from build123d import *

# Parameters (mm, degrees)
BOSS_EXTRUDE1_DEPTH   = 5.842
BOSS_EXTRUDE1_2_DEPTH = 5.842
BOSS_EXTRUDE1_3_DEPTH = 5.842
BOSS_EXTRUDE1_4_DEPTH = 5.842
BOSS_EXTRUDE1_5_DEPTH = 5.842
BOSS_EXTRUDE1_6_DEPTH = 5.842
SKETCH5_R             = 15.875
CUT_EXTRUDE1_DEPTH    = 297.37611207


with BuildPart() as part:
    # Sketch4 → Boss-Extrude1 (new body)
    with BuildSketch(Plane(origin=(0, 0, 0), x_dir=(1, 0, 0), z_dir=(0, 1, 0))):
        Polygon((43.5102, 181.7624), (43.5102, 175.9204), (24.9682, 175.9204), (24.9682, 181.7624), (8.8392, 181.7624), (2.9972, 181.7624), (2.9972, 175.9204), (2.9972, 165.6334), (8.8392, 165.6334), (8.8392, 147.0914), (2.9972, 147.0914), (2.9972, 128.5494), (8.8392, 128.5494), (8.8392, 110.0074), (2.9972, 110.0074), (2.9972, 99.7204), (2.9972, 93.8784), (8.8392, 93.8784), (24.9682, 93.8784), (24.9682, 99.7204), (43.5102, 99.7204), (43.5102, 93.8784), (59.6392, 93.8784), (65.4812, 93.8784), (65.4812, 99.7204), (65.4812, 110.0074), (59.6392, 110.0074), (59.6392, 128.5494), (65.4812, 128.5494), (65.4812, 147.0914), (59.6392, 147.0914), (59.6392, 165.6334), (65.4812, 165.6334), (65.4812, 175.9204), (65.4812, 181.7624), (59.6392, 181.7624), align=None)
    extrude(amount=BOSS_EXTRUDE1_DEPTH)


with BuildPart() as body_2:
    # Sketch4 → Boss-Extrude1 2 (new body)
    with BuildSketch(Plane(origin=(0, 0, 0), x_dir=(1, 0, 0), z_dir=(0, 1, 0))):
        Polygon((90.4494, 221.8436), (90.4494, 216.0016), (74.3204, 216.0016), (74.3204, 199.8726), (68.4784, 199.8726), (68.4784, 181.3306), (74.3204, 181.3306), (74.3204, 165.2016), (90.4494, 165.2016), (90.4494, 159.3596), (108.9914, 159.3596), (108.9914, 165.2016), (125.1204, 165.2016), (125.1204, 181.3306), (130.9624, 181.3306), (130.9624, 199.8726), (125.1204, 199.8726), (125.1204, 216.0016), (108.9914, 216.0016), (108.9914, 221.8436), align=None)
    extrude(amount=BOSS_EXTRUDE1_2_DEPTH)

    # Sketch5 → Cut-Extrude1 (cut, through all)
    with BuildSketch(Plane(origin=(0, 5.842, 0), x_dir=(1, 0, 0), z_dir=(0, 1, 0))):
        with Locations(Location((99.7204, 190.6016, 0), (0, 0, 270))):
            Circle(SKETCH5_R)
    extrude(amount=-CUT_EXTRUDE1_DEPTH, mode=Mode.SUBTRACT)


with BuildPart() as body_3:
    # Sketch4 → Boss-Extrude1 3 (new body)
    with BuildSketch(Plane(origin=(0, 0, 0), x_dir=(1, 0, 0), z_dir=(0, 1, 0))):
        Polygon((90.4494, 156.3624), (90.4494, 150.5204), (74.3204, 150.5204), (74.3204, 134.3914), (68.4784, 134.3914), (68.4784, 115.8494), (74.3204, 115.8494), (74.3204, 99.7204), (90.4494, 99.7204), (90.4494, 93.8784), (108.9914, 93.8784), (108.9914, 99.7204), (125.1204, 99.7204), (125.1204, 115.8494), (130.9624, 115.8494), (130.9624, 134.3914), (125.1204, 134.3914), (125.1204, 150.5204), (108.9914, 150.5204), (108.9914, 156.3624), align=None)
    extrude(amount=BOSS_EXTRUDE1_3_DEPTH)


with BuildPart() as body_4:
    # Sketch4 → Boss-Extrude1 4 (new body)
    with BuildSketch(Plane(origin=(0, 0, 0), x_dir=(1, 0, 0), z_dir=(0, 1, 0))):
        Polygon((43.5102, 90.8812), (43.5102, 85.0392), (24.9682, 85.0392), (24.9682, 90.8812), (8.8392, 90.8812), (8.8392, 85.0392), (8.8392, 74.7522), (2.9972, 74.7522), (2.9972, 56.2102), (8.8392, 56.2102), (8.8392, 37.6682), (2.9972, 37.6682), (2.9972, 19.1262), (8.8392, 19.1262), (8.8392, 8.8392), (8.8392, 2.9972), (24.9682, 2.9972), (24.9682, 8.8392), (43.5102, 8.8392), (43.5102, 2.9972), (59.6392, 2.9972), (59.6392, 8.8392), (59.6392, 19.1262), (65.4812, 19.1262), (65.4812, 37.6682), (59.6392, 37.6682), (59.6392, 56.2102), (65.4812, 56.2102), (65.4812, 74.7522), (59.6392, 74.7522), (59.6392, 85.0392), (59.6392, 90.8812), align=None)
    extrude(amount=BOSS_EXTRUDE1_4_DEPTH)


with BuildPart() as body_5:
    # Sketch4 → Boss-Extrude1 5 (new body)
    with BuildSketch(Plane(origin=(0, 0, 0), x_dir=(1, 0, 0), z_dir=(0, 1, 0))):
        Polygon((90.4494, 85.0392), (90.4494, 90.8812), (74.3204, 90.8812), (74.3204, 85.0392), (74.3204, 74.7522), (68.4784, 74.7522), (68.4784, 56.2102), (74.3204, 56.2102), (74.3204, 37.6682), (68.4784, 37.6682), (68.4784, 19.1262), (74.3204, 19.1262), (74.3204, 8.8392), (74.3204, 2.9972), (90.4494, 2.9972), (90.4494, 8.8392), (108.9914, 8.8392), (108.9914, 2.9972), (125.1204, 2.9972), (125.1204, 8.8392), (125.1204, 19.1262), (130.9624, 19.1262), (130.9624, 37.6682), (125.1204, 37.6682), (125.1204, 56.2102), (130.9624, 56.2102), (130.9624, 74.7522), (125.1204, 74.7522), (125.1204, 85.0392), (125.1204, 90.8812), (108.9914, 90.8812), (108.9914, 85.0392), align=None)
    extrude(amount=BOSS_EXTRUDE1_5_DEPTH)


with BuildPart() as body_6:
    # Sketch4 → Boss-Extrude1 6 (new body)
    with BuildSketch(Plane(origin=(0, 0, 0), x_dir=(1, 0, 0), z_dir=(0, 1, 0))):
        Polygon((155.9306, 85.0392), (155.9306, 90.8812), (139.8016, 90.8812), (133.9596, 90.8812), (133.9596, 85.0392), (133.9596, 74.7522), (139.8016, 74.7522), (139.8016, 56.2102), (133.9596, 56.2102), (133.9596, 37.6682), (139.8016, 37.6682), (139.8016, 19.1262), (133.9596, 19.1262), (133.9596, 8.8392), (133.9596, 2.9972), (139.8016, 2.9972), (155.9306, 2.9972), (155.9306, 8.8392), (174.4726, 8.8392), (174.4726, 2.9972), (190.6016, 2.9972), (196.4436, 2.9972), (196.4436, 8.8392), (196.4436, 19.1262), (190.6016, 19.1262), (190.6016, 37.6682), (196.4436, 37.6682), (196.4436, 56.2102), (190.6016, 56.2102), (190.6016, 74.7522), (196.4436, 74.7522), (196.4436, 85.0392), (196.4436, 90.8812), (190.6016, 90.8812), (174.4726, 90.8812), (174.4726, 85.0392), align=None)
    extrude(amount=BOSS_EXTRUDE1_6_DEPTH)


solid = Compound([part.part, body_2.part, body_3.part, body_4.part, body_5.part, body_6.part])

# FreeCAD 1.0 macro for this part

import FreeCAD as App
import Part
import Sketcher
from FreeCAD import Vector
Q = App.Units.Quantity


def add_polygon(sketch, points):
    """Adds a closed chain of lines whose ends are joined by coincident constraints."""
    first, n = sketch.GeometryCount, len(points)
    for a, b in zip(points, points[1:] + points[:1]):
        sketch.addGeometry(Part.LineSegment(App.Vector(*a, 0), App.Vector(*b, 0)), False)
    for i in range(n):
        sketch.addConstraint(Sketcher.Constraint("Coincident", first + i, 2, first + (i + 1) % n, 1))

doc = App.newDocument("Part")
body = doc.addObject("PartDesign::Body", "Body")

sketch1 = body.newObject("Sketcher::SketchObject", "Sketch")
sketch1.AttachmentSupport = (doc.getObject("XZ_Plane"), [""])
sketch1.MapMode = "FlatFace"
add_polygon(sketch1, [(44, -182), (44, -176), (25, -176), (25, -182), (3, -182), (3, -166), (9, -166), (9, -147), (3, -147), (3, -129), (9, -129), (9, -110), (3, -110), (3, -94), (25, -94), (25, -100), (44, -100), (44, -94), (65, -94), (65, -110), (60, -110), (60, -129), (65, -129), (65, -147), (60, -147), (60, -166), (65, -166), (65, -182)])
sketch1.addConstraint([
    Sketcher.Constraint("Vertical", 0),
    Sketcher.Constraint("Horizontal", 1),
    Sketcher.Constraint("Vertical", 2),
    Sketcher.Constraint("Horizontal", 3),
    Sketcher.Constraint("Vertical", 4),
    Sketcher.Constraint("Horizontal", 5),
    Sketcher.Constraint("Vertical", 6),
    Sketcher.Constraint("Horizontal", 7),
    Sketcher.Constraint("Vertical", 8),
    Sketcher.Constraint("Horizontal", 9),
    Sketcher.Constraint("Vertical", 10),
    Sketcher.Constraint("Horizontal", 11),
    Sketcher.Constraint("Vertical", 12),
    Sketcher.Constraint("Horizontal", 13),
    Sketcher.Constraint("Vertical", 14),
    Sketcher.Constraint("Horizontal", 15),
    Sketcher.Constraint("Vertical", 16),
    Sketcher.Constraint("Horizontal", 17),
    Sketcher.Constraint("Vertical", 18),
    Sketcher.Constraint("Horizontal", 19),
    Sketcher.Constraint("Vertical", 20),
    Sketcher.Constraint("Horizontal", 21),
    Sketcher.Constraint("Vertical", 22),
    Sketcher.Constraint("Horizontal", 23),
    Sketcher.Constraint("Vertical", 24),
    Sketcher.Constraint("Horizontal", 25),
    Sketcher.Constraint("Vertical", 26),
    Sketcher.Constraint("Horizontal", 27),
    Sketcher.Constraint("Horizontal", 13, 2, 16, 2),
    Sketcher.Constraint("Horizontal", 11, 2, 18, 2),
    Sketcher.Constraint("Horizontal", 9, 2, 20, 2),
    Sketcher.Constraint("Horizontal", 7, 2, 22, 2),
    Sketcher.Constraint("Horizontal", 5, 2, 24, 2),
    Sketcher.Constraint("Horizontal", 3, 2, 26, 2),
    Sketcher.Constraint("Vertical", 4, 2, 7, 2),
    Sketcher.Constraint("Vertical", 6, 2, 9, 2),
    Sketcher.Constraint("Vertical", 8, 2, 11, 2),
    Sketcher.Constraint("Vertical", 2, 2, 13, 2),
    Sketcher.Constraint("Vertical", 0, 2, 15, 2),
    Sketcher.Constraint("Vertical", 18, 2, 21, 2),
    Sketcher.Constraint("Vertical", 20, 2, 23, 2),
    Sketcher.Constraint("Vertical", 22, 2, 25, 2),
    Sketcher.Constraint("Equal", 13, 17),
    Sketcher.Constraint("Equal", 11, 19),
    Sketcher.Constraint("Equal", 25, 0),
    Sketcher.Constraint("Equal", 15, 6),
    Sketcher.Constraint("Equal", 6, 8),
    Sketcher.Constraint("Equal", 8, 10),
    Sketcher.Constraint("Equal", 4, 12),
    Sketcher.Constraint("Equal", 2, 14),
    Sketcher.Constraint("DistanceX", 1, 2, 1, 1, Q("0.73 in")),
    Sketcher.Constraint("DistanceX", 5, 1, 5, 2, Q("0.23 in")),
    Sketcher.Constraint("DistanceX", 3, 2, 3, 1, Q("0.865 in")),
    Sketcher.Constraint("DistanceY", 4, 1, 4, 2, Q("0.635 in")),
    Sketcher.Constraint("DistanceX", -1, 1, 0, 2, Q("1.713 in")),
    Sketcher.Constraint("DistanceY", 0, 2, -1, 1, Q("6.926 in")),
])
pad1 = body.newObject("PartDesign::Pad", "Pad")
pad1.Profile = sketch1
pad1.Length = Q("0.23 in")
pad1.Reversed = True
body2 = doc.addObject("PartDesign::Body", "Body001")

sketch2 = body2.newObject("Sketcher::SketchObject", "Sketch001")
sketch2.AttachmentSupport = (doc.getObject("XZ_Plane001"), [""])
sketch2.MapMode = "FlatFace"
add_polygon(sketch2, [(90, -222), (90, -216), (74, -216), (74, -200), (68, -200), (68, -181), (74, -181), (74, -165), (90, -165), (90, -159), (109, -159), (109, -165), (125, -165), (125, -181), (131, -181), (131, -200), (125, -200), (125, -216), (109, -216), (109, -222)])
sketch2.addConstraint([
    Sketcher.Constraint("Vertical", 0),
    Sketcher.Constraint("Horizontal", 1),
    Sketcher.Constraint("Vertical", 2),
    Sketcher.Constraint("Horizontal", 3),
    Sketcher.Constraint("Vertical", 4),
    Sketcher.Constraint("Horizontal", 5),
    Sketcher.Constraint("Vertical", 6),
    Sketcher.Constraint("Horizontal", 7),
    Sketcher.Constraint("Vertical", 8),
    Sketcher.Constraint("Horizontal", 9),
    Sketcher.Constraint("Vertical", 10),
    Sketcher.Constraint("Horizontal", 11),
    Sketcher.Constraint("Vertical", 12),
    Sketcher.Constraint("Horizontal", 13),
    Sketcher.Constraint("Vertical", 14),
    Sketcher.Constraint("Horizontal", 15),
    Sketcher.Constraint("Vertical", 16),
    Sketcher.Constraint("Horizontal", 17),
    Sketcher.Constraint("Vertical", 18),
    Sketcher.Constraint("Horizontal", 19),
    Sketcher.Constraint("Horizontal", 7, 2, 10, 2),
    Sketcher.Constraint("Horizontal", 5, 2, 12, 2),
    Sketcher.Constraint("Horizontal", 3, 2, 14, 2),
    Sketcher.Constraint("Horizontal", 1, 2, 16, 2),
    Sketcher.Constraint("Vertical", 2, 2, 5, 2),
    Sketcher.Constraint("Vertical", 0, 2, 7, 2),
    Sketcher.Constraint("Vertical", 12, 2, 15, 2),
    Sketcher.Constraint("Vertical", 10, 2, 17, 2),
    Sketcher.Constraint("Equal", 7, 11),
    Sketcher.Constraint("Equal", 5, 13),
    Sketcher.Constraint("Equal", 15, 0),
    Sketcher.Constraint("Equal", 17, 2),
    Sketcher.Constraint("Equal", 19, 4),
    Sketcher.Constraint("Equal", 2, 6),
    Sketcher.Constraint("Equal", 0, 8),
    Sketcher.Constraint("DistanceY", 1, 2, 6, 2, Q("2 in")),
    Sketcher.Constraint("DistanceX", 3, 2, 3, 1, Q("0.23 in")),
    Sketcher.Constraint("DistanceX", 9, 1, 9, 2, Q("0.73 in")),
    Sketcher.Constraint("DistanceX", -1, 1, 0, 2, Q("3.561 in")),
    Sketcher.Constraint("DistanceY", 0, 2, -1, 1, Q("8.504 in")),
])
pad2 = body2.newObject("PartDesign::Pad", "Pad001")
pad2.Profile = sketch2
pad2.Length = Q("0.23 in")
pad2.Reversed = True

sketch3 = body2.newObject("Sketcher::SketchObject", "Sketch002")
sketch3.AttachmentSupport = (doc.getObject("XZ_Plane001"), [""])
sketch3.MapMode = "FlatFace"
sketch3.AttachmentOffset = App.Placement(Vector(0, 0, -0.23 * 25.4), App.Rotation())
sketch3.addGeometry(Part.Circle(Vector(100, -191, 0), Vector(0, 0, 1), 16), False)
sketch3.addConstraint([
    Sketcher.Constraint("Diameter", 0, Q("1.25 in")),
    Sketcher.Constraint("DistanceX", -1, 1, 0, 3, Q("3.926 in")),
    Sketcher.Constraint("DistanceY", 0, 3, -1, 1, Q("7.504 in")),
])
pocket1 = body2.newObject("PartDesign::Pocket", "Pocket")
pocket1.Profile = sketch3
pocket1.Type = "ThroughAll"
pocket1.Reversed = True
body3 = doc.addObject("PartDesign::Body", "Body002")

sketch4 = body3.newObject("Sketcher::SketchObject", "Sketch003")
sketch4.AttachmentSupport = (doc.getObject("XZ_Plane002"), [""])
sketch4.MapMode = "FlatFace"
add_polygon(sketch4, [(90, -156), (90, -151), (74, -151), (74, -134), (68, -134), (68, -116), (74, -116), (74, -100), (90, -100), (90, -94), (109, -94), (109, -100), (125, -100), (125, -116), (131, -116), (131, -134), (125, -134), (125, -151), (109, -151), (109, -156)])
sketch4.addConstraint([
    Sketcher.Constraint("Vertical", 0),
    Sketcher.Constraint("Horizontal", 1),
    Sketcher.Constraint("Vertical", 2),
    Sketcher.Constraint("Horizontal", 3),
    Sketcher.Constraint("Vertical", 4),
    Sketcher.Constraint("Horizontal", 5),
    Sketcher.Constraint("Vertical", 6),
    Sketcher.Constraint("Horizontal", 7),
    Sketcher.Constraint("Vertical", 8),
    Sketcher.Constraint("Horizontal", 9),
    Sketcher.Constraint("Vertical", 10),
    Sketcher.Constraint("Horizontal", 11),
    Sketcher.Constraint("Vertical", 12),
    Sketcher.Constraint("Horizontal", 13),
    Sketcher.Constraint("Vertical", 14),
    Sketcher.Constraint("Horizontal", 15),
    Sketcher.Constraint("Vertical", 16),
    Sketcher.Constraint("Horizontal", 17),
    Sketcher.Constraint("Vertical", 18),
    Sketcher.Constraint("Horizontal", 19),
    Sketcher.Constraint("Horizontal", 7, 2, 10, 2),
    Sketcher.Constraint("Horizontal", 5, 2, 12, 2),
    Sketcher.Constraint("Horizontal", 3, 2, 14, 2),
    Sketcher.Constraint("Horizontal", 1, 2, 16, 2),
    Sketcher.Constraint("Vertical", 2, 2, 5, 2),
    Sketcher.Constraint("Vertical", 0, 2, 7, 2),
    Sketcher.Constraint("Vertical", 12, 2, 15, 2),
    Sketcher.Constraint("Vertical", 10, 2, 17, 2),
    Sketcher.Constraint("Equal", 7, 11),
    Sketcher.Constraint("Equal", 5, 13),
    Sketcher.Constraint("Equal", 15, 0),
    Sketcher.Constraint("Equal", 17, 2),
    Sketcher.Constraint("Equal", 19, 4),
    Sketcher.Constraint("Equal", 2, 6),
    Sketcher.Constraint("Equal", 0, 8),
    Sketcher.Constraint("DistanceY", 1, 2, 6, 2, Q("2 in")),
    Sketcher.Constraint("DistanceX", 3, 2, 3, 1, Q("0.23 in")),
    Sketcher.Constraint("DistanceX", 9, 1, 9, 2, Q("0.73 in")),
    Sketcher.Constraint("DistanceX", -1, 1, 0, 2, Q("3.561 in")),
    Sketcher.Constraint("DistanceY", 0, 2, -1, 1, Q("5.926 in")),
])
pad3 = body3.newObject("PartDesign::Pad", "Pad002")
pad3.Profile = sketch4
pad3.Length = Q("0.23 in")
pad3.Reversed = True
body4 = doc.addObject("PartDesign::Body", "Body003")

sketch5 = body4.newObject("Sketcher::SketchObject", "Sketch004")
sketch5.AttachmentSupport = (doc.getObject("XZ_Plane003"), [""])
sketch5.MapMode = "FlatFace"
add_polygon(sketch5, [(44, -91), (44, -85), (25, -85), (25, -91), (9, -91), (9, -75), (3, -75), (3, -56), (9, -56), (9, -38), (3, -38), (3, -19), (9, -19), (9, -3), (25, -3), (25, -9), (44, -9), (44, -3), (60, -3), (60, -19), (65, -19), (65, -38), (60, -38), (60, -56), (65, -56), (65, -75), (60, -75), (60, -91)])
sketch5.addConstraint([
    Sketcher.Constraint("Vertical", 0),
    Sketcher.Constraint("Horizontal", 1),
    Sketcher.Constraint("Vertical", 2),
    Sketcher.Constraint("Horizontal", 3),
    Sketcher.Constraint("Vertical", 4),
    Sketcher.Constraint("Horizontal", 5),
    Sketcher.Constraint("Vertical", 6),
    Sketcher.Constraint("Horizontal", 7),
    Sketcher.Constraint("Vertical", 8),
    Sketcher.Constraint("Horizontal", 9),
    Sketcher.Constraint("Vertical", 10),
    Sketcher.Constraint("Horizontal", 11),
    Sketcher.Constraint("Vertical", 12),
    Sketcher.Constraint("Horizontal", 13),
    Sketcher.Constraint("Vertical", 14),
    Sketcher.Constraint("Horizontal", 15),
    Sketcher.Constraint("Vertical", 16),
    Sketcher.Constraint("Horizontal", 17),
    Sketcher.Constraint("Vertical", 18),
    Sketcher.Constraint("Horizontal", 19),
    Sketcher.Constraint("Vertical", 20),
    Sketcher.Constraint("Horizontal", 21),
    Sketcher.Constraint("Vertical", 22),
    Sketcher.Constraint("Horizontal", 23),
    Sketcher.Constraint("Vertical", 24),
    Sketcher.Constraint("Horizontal", 25),
    Sketcher.Constraint("Vertical", 26),
    Sketcher.Constraint("Horizontal", 27),
    Sketcher.Constraint("Horizontal", 13, 2, 16, 2),
    Sketcher.Constraint("Horizontal", 11, 2, 18, 2),
    Sketcher.Constraint("Horizontal", 9, 2, 20, 2),
    Sketcher.Constraint("Horizontal", 7, 2, 22, 2),
    Sketcher.Constraint("Horizontal", 5, 2, 24, 2),
    Sketcher.Constraint("Horizontal", 3, 2, 26, 2),
    Sketcher.Constraint("Vertical", 4, 2, 7, 2),
    Sketcher.Constraint("Vertical", 6, 2, 9, 2),
    Sketcher.Constraint("Vertical", 8, 2, 11, 2),
    Sketcher.Constraint("Vertical", 2, 2, 13, 2),
    Sketcher.Constraint("Vertical", 0, 2, 15, 2),
    Sketcher.Constraint("Vertical", 18, 2, 21, 2),
    Sketcher.Constraint("Vertical", 20, 2, 23, 2),
    Sketcher.Constraint("Vertical", 22, 2, 25, 2),
    Sketcher.Constraint("Equal", 13, 17),
    Sketcher.Constraint("Equal", 11, 19),
    Sketcher.Constraint("Equal", 25, 0),
    Sketcher.Constraint("Equal", 27, 4),
    Sketcher.Constraint("Equal", 15, 6),
    Sketcher.Constraint("Equal", 6, 8),
    Sketcher.Constraint("Equal", 8, 10),
    Sketcher.Constraint("Equal", 4, 12),
    Sketcher.Constraint("Equal", 2, 14),
    Sketcher.Constraint("DistanceX", 12, 2, 17, 2, Q("2 in")),
    Sketcher.Constraint("DistanceX", 1, 2, 1, 1, Q("0.73 in")),
    Sketcher.Constraint("DistanceX", 5, 2, 5, 1, Q("0.23 in")),
    Sketcher.Constraint("DistanceX", -1, 1, 0, 2, Q("1.713 in")),
    Sketcher.Constraint("DistanceY", 0, 2, -1, 1, Q("3.348 in")),
])
pad4 = body4.newObject("PartDesign::Pad", "Pad003")
pad4.Profile = sketch5
pad4.Length = Q("0.23 in")
pad4.Reversed = True
body5 = doc.addObject("PartDesign::Body", "Body004")

sketch6 = body5.newObject("Sketcher::SketchObject", "Sketch005")
sketch6.AttachmentSupport = (doc.getObject("XZ_Plane004"), [""])
sketch6.MapMode = "FlatFace"
add_polygon(sketch6, [(90, -85), (90, -91), (74, -91), (74, -75), (68, -75), (68, -56), (74, -56), (74, -38), (68, -38), (68, -19), (74, -19), (74, -3), (90, -3), (90, -9), (109, -9), (109, -3), (125, -3), (125, -19), (131, -19), (131, -38), (125, -38), (125, -56), (131, -56), (131, -75), (125, -75), (125, -91), (109, -91), (109, -85)])
sketch6.addConstraint([
    Sketcher.Constraint("Vertical", 0),
    Sketcher.Constraint("Horizontal", 1),
    Sketcher.Constraint("Vertical", 2),
    Sketcher.Constraint("Horizontal", 3),
    Sketcher.Constraint("Vertical", 4),
    Sketcher.Constraint("Horizontal", 5),
    Sketcher.Constraint("Vertical", 6),
    Sketcher.Constraint("Horizontal", 7),
    Sketcher.Constraint("Vertical", 8),
    Sketcher.Constraint("Horizontal", 9),
    Sketcher.Constraint("Vertical", 10),
    Sketcher.Constraint("Horizontal", 11),
    Sketcher.Constraint("Vertical", 12),
    Sketcher.Constraint("Horizontal", 13),
    Sketcher.Constraint("Vertical", 14),
    Sketcher.Constraint("Horizontal", 15),
    Sketcher.Constraint("Vertical", 16),
    Sketcher.Constraint("Horizontal", 17),
    Sketcher.Constraint("Vertical", 18),
    Sketcher.Constraint("Horizontal", 19),
    Sketcher.Constraint("Vertical", 20),
    Sketcher.Constraint("Horizontal", 21),
    Sketcher.Constraint("Vertical", 22),
    Sketcher.Constraint("Horizontal", 23),
    Sketcher.Constraint("Vertical", 24),
    Sketcher.Constraint("Horizontal", 25),
    Sketcher.Constraint("Vertical", 26),
    Sketcher.Constraint("Horizontal", 27),
    Sketcher.Constraint("Horizontal", 11, 2, 14, 2),
    Sketcher.Constraint("Horizontal", 9, 2, 16, 2),
    Sketcher.Constraint("Horizontal", 7, 2, 18, 2),
    Sketcher.Constraint("Horizontal", 5, 2, 20, 2),
    Sketcher.Constraint("Horizontal", 3, 2, 22, 2),
    Sketcher.Constraint("Horizontal", 1, 2, 24, 2),
    Sketcher.Constraint("Vertical", 2, 2, 5, 2),
    Sketcher.Constraint("Vertical", 4, 2, 7, 2),
    Sketcher.Constraint("Vertical", 6, 2, 9, 2),
    Sketcher.Constraint("Vertical", 0, 2, 11, 2),
    Sketcher.Constraint("Vertical", 16, 2, 19, 2),
    Sketcher.Constraint("Vertical", 18, 2, 21, 2),
    Sketcher.Constraint("Vertical", 20, 2, 23, 2),
    Sketcher.Constraint("Vertical", 14, 2, 25, 2),
    Sketcher.Constraint("Equal", 11, 15),
    Sketcher.Constraint("Equal", 9, 17),
    Sketcher.Constraint("Equal", 23, 0),
    Sketcher.Constraint("Equal", 25, 2),
    Sketcher.Constraint("Equal", 27, 4),
    Sketcher.Constraint("Equal", 4, 6),
    Sketcher.Constraint("Equal", 6, 8),
    Sketcher.Constraint("Equal", 2, 10),
    Sketcher.Constraint("Equal", 0, 12),
    Sketcher.Constraint("DistanceX", 10, 2, 15, 2, Q("2 in")),
    Sketcher.Constraint("DistanceX", 3, 2, 3, 1, Q("0.23 in")),
    Sketcher.Constraint("DistanceX", 13, 1, 13, 2, Q("0.73 in")),
    Sketcher.Constraint("DistanceX", -1, 1, 0, 2, Q("3.561 in")),
    Sketcher.Constraint("DistanceY", 0, 2, -1, 1, Q("3.578 in")),
])
pad5 = body5.newObject("PartDesign::Pad", "Pad004")
pad5.Profile = sketch6
pad5.Length = Q("0.23 in")
pad5.Reversed = True
body6 = doc.addObject("PartDesign::Body", "Body005")

sketch7 = body6.newObject("Sketcher::SketchObject", "Sketch006")
sketch7.AttachmentSupport = (doc.getObject("XZ_Plane005"), [""])
sketch7.MapMode = "FlatFace"
add_polygon(sketch7, [(156, -85), (156, -91), (134, -91), (134, -75), (140, -75), (140, -56), (134, -56), (134, -38), (140, -38), (140, -19), (134, -19), (134, -3), (156, -3), (156, -9), (174, -9), (174, -3), (196, -3), (196, -19), (191, -19), (191, -38), (196, -38), (196, -56), (191, -56), (191, -75), (196, -75), (196, -91), (174, -91), (174, -85)])
sketch7.addConstraint([
    Sketcher.Constraint("Vertical", 0),
    Sketcher.Constraint("Horizontal", 1),
    Sketcher.Constraint("Vertical", 2),
    Sketcher.Constraint("Horizontal", 3),
    Sketcher.Constraint("Vertical", 4),
    Sketcher.Constraint("Horizontal", 5),
    Sketcher.Constraint("Vertical", 6),
    Sketcher.Constraint("Horizontal", 7),
    Sketcher.Constraint("Vertical", 8),
    Sketcher.Constraint("Horizontal", 9),
    Sketcher.Constraint("Vertical", 10),
    Sketcher.Constraint("Horizontal", 11),
    Sketcher.Constraint("Vertical", 12),
    Sketcher.Constraint("Horizontal", 13),
    Sketcher.Constraint("Vertical", 14),
    Sketcher.Constraint("Horizontal", 15),
    Sketcher.Constraint("Vertical", 16),
    Sketcher.Constraint("Horizontal", 17),
    Sketcher.Constraint("Vertical", 18),
    Sketcher.Constraint("Horizontal", 19),
    Sketcher.Constraint("Vertical", 20),
    Sketcher.Constraint("Horizontal", 21),
    Sketcher.Constraint("Vertical", 22),
    Sketcher.Constraint("Horizontal", 23),
    Sketcher.Constraint("Vertical", 24),
    Sketcher.Constraint("Horizontal", 25),
    Sketcher.Constraint("Vertical", 26),
    Sketcher.Constraint("Horizontal", 27),
    Sketcher.Constraint("Horizontal", 11, 2, 14, 2),
    Sketcher.Constraint("Horizontal", 9, 2, 16, 2),
    Sketcher.Constraint("Horizontal", 7, 2, 18, 2),
    Sketcher.Constraint("Horizontal", 5, 2, 20, 2),
    Sketcher.Constraint("Horizontal", 3, 2, 22, 2),
    Sketcher.Constraint("Horizontal", 1, 2, 24, 2),
    Sketcher.Constraint("Vertical", 2, 2, 5, 2),
    Sketcher.Constraint("Vertical", 4, 2, 7, 2),
    Sketcher.Constraint("Vertical", 6, 2, 9, 2),
    Sketcher.Constraint("Vertical", 0, 2, 11, 2),
    Sketcher.Constraint("Vertical", 16, 2, 19, 2),
    Sketcher.Constraint("Vertical", 18, 2, 21, 2),
    Sketcher.Constraint("Vertical", 20, 2, 23, 2),
    Sketcher.Constraint("Vertical", 14, 2, 25, 2),
    Sketcher.Constraint("Equal", 11, 15),
    Sketcher.Constraint("Equal", 9, 17),
    Sketcher.Constraint("Equal", 23, 0),
    Sketcher.Constraint("Equal", 27, 4),
    Sketcher.Constraint("Equal", 4, 6),
    Sketcher.Constraint("Equal", 6, 8),
    Sketcher.Constraint("Equal", 2, 10),
    Sketcher.Constraint("Equal", 0, 12),
    Sketcher.Constraint("DistanceX", 3, 1, 3, 2, Q("0.23 in")),
    Sketcher.Constraint("DistanceX", 13, 1, 13, 2, Q("0.73 in")),
    Sketcher.Constraint("DistanceX", 1, 2, 1, 1, Q("0.865 in")),
    Sketcher.Constraint("DistanceY", 2, 1, 2, 2, Q("0.635 in")),
    Sketcher.Constraint("DistanceX", -1, 1, 0, 2, Q("6.139 in")),
    Sketcher.Constraint("DistanceY", 0, 2, -1, 1, Q("3.578 in")),
])
pad6 = body6.newObject("PartDesign::Pad", "Pad005")
pad6.Profile = sketch7
pad6.Length = Q("0.23 in")
pad6.Reversed = True

doc.recompute()
